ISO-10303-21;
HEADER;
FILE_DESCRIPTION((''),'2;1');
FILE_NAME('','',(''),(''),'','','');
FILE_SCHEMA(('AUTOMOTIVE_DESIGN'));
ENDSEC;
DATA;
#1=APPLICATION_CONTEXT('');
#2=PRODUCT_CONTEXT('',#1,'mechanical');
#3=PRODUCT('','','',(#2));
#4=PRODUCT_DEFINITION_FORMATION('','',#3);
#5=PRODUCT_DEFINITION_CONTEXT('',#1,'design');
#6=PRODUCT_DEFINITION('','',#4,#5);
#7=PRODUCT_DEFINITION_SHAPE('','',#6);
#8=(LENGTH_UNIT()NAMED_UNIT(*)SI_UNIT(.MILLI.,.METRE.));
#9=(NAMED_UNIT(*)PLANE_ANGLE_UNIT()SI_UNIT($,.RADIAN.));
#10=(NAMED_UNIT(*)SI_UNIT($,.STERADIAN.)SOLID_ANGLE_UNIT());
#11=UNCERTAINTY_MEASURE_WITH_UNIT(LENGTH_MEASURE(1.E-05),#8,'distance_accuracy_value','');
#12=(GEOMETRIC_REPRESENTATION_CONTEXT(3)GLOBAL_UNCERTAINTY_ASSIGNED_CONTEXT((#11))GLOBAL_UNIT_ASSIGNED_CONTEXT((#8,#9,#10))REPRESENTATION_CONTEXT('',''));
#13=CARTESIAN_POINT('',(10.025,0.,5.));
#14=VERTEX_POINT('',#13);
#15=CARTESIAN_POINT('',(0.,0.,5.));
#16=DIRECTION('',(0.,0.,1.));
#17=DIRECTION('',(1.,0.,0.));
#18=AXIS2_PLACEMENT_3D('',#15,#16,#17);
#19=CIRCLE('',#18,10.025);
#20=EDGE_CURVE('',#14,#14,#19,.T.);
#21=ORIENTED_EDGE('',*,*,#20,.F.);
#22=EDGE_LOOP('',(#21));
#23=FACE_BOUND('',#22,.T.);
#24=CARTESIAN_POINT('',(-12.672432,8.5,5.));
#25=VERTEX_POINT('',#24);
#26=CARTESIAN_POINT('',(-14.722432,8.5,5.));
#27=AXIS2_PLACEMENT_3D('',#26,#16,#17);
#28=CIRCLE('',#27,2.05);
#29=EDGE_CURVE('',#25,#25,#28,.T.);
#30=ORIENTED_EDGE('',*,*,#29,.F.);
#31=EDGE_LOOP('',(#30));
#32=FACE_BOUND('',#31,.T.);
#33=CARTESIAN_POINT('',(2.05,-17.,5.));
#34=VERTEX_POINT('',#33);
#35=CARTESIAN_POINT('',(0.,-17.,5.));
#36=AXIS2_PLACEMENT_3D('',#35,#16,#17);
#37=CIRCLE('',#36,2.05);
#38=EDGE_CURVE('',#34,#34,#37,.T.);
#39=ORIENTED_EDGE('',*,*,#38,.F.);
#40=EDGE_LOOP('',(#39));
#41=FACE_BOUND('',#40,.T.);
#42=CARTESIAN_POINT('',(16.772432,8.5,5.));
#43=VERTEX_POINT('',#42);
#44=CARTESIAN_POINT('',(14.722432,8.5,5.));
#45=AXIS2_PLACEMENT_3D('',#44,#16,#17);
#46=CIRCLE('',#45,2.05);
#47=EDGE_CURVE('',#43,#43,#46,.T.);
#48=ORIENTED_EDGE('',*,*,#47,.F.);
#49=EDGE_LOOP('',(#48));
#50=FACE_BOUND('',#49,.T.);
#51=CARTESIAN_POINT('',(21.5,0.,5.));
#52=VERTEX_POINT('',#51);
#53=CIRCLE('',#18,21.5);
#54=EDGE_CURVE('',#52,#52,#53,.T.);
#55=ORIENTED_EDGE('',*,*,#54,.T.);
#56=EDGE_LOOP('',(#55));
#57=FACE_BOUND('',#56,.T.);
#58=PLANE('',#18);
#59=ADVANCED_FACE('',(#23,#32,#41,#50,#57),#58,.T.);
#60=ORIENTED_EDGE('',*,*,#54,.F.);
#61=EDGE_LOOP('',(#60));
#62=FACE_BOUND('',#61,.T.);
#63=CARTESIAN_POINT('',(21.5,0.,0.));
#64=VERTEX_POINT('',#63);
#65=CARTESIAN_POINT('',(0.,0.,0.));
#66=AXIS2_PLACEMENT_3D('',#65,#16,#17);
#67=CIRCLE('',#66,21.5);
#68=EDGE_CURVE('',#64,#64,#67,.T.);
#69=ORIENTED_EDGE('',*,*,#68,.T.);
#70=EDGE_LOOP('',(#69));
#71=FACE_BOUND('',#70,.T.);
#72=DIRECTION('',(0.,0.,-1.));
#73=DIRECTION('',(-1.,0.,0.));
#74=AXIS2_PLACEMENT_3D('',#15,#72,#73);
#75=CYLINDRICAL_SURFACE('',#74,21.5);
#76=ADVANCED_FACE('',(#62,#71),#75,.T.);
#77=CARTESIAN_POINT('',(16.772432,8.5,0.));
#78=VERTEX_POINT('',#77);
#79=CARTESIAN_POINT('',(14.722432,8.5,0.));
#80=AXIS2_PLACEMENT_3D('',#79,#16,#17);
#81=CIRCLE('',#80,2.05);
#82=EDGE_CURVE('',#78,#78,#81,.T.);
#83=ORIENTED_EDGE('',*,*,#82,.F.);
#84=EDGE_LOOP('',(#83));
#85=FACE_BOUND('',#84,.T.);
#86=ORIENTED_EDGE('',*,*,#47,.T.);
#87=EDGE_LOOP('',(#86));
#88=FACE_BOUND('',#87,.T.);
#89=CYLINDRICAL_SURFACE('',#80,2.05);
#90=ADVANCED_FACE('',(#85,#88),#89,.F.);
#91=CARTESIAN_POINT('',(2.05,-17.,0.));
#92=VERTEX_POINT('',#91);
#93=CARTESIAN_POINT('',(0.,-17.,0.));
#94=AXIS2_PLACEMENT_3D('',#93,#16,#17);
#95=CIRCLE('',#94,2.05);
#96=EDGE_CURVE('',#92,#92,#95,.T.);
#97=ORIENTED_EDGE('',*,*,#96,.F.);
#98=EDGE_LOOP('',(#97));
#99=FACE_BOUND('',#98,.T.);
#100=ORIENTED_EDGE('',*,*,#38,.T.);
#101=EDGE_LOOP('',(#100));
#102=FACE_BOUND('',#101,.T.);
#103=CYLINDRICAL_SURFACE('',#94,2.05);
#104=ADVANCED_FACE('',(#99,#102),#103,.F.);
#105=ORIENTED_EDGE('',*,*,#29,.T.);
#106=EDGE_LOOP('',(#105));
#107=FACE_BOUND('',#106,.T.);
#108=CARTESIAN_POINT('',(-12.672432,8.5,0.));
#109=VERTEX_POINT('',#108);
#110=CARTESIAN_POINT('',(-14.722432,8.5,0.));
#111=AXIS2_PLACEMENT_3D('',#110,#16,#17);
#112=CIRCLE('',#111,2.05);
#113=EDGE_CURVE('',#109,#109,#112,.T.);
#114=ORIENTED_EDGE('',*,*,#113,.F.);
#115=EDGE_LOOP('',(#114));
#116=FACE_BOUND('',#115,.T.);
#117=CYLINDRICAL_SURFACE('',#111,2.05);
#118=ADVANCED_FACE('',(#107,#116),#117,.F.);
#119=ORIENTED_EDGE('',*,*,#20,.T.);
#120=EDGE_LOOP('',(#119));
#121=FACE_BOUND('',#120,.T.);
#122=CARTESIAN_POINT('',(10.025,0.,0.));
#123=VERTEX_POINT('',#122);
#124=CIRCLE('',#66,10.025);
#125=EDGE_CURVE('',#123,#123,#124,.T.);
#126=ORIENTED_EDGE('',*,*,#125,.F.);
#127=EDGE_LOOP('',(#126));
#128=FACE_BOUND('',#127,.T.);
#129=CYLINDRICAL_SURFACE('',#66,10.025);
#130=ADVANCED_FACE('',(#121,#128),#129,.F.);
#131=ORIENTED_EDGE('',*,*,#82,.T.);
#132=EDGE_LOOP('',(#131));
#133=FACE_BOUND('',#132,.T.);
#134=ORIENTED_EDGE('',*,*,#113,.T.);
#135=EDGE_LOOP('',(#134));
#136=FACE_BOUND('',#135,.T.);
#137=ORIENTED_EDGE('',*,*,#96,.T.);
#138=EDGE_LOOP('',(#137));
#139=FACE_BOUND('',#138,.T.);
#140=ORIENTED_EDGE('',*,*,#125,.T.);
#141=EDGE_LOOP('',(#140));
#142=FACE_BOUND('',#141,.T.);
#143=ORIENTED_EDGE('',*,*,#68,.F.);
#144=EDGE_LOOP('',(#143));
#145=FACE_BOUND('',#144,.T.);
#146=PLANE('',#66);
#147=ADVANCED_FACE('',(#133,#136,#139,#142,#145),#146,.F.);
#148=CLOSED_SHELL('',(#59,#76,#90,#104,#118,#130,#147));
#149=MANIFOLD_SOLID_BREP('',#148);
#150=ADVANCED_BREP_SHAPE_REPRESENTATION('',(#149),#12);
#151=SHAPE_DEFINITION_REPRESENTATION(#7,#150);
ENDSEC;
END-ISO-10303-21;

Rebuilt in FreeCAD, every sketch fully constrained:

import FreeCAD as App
import Part
import Sketcher

doc = App.newDocument("Part")
body = doc.addObject("PartDesign::Body", "Body")

# Sketch on XY plane
sketch1 = body.newObject("Sketcher::SketchObject", "Sketch")
sketch1.AttachmentSupport = (doc.getObject("XY_Plane"), [""])
sketch1.MapMode = "FlatFace"
sketch1.addGeometry(Part.Circle(App.Vector(0, 0, 0), App.Vector(0, 0, 1), 21.5), False)
sketch1.addConstraint(Sketcher.Constraint("Coincident", 0, 3, -1, 1))
sketch1.addConstraint(Sketcher.Constraint("Diameter", 0, 43.0))
pad1 = body.newObject("PartDesign::Pad", "Pad")
pad1.Profile = sketch1
pad1.Length = 5

# Sketch on XY plane
sketch2 = body.newObject("Sketcher::SketchObject", "Sketch001")
sketch2.AttachmentSupport = (doc.getObject("XY_Plane"), [""])
sketch2.MapMode = "FlatFace"
sketch2.AttachmentOffset = App.Placement(App.Vector(0, 0, 5), App.Rotation())
sketch2.addGeometry(Part.Circle(App.Vector(0, 0, 0), App.Vector(0, 0, 1), 10.025), False)
sketch2.addConstraint(Sketcher.Constraint("Coincident", 0, 3, -1, 1))
sketch2.addConstraint(Sketcher.Constraint("Diameter", 0, 20.05))
pocket1 = body.newObject("PartDesign::Pocket", "Pocket")
pocket1.Profile = sketch2
pocket1.Type = "ThroughAll"

# Sketch on XY plane
sketch3 = body.newObject("Sketcher::SketchObject", "Sketch002")
sketch3.AttachmentSupport = (doc.getObject("XY_Plane"), [""])
sketch3.MapMode = "FlatFace"
sketch3.AttachmentOffset = App.Placement(App.Vector(0, 0, 5), App.Rotation())
sketch3.addGeometry(Part.Circle(App.Vector(0, -17, 0), App.Vector(0, 0, 1), 2.05), False)
sketch3.addGeometry(Part.Circle(App.Vector(-14.722432, 8.5, 0), App.Vector(0, 0, 1), 2.05), False)
sketch3.addGeometry(Part.Circle(App.Vector(14.722432, 8.5, 0), App.Vector(0, 0, 1), 2.05), False)
sketch3.addConstraint(Sketcher.Constraint("Equal", 0, 1))
sketch3.addConstraint(Sketcher.Constraint("Equal", 1, 2))
sketch3.addConstraint(Sketcher.Constraint("Symmetric", 1, 3, 2, 3, -2))
sketch3.addConstraint(Sketcher.Constraint("PointOnObject", 0, 3, -2))
sketch3.addConstraint(Sketcher.Constraint("Diameter", 0, 4.1))
sketch3.addConstraint(Sketcher.Constraint("DistanceY", 0, 3, -1, 1, 17.0))
sketch3.addConstraint(Sketcher.Constraint("DistanceY", -1, 1, 1, 3, 8.5))
sketch3.addConstraint(Sketcher.Constraint("DistanceX", 1, 3, -1, 1, 14.722432))
pocket2 = body.newObject("PartDesign::Pocket", "Pocket001")
pocket2.Profile = sketch3
pocket2.Type = "ThroughAll"

doc.recompute()
